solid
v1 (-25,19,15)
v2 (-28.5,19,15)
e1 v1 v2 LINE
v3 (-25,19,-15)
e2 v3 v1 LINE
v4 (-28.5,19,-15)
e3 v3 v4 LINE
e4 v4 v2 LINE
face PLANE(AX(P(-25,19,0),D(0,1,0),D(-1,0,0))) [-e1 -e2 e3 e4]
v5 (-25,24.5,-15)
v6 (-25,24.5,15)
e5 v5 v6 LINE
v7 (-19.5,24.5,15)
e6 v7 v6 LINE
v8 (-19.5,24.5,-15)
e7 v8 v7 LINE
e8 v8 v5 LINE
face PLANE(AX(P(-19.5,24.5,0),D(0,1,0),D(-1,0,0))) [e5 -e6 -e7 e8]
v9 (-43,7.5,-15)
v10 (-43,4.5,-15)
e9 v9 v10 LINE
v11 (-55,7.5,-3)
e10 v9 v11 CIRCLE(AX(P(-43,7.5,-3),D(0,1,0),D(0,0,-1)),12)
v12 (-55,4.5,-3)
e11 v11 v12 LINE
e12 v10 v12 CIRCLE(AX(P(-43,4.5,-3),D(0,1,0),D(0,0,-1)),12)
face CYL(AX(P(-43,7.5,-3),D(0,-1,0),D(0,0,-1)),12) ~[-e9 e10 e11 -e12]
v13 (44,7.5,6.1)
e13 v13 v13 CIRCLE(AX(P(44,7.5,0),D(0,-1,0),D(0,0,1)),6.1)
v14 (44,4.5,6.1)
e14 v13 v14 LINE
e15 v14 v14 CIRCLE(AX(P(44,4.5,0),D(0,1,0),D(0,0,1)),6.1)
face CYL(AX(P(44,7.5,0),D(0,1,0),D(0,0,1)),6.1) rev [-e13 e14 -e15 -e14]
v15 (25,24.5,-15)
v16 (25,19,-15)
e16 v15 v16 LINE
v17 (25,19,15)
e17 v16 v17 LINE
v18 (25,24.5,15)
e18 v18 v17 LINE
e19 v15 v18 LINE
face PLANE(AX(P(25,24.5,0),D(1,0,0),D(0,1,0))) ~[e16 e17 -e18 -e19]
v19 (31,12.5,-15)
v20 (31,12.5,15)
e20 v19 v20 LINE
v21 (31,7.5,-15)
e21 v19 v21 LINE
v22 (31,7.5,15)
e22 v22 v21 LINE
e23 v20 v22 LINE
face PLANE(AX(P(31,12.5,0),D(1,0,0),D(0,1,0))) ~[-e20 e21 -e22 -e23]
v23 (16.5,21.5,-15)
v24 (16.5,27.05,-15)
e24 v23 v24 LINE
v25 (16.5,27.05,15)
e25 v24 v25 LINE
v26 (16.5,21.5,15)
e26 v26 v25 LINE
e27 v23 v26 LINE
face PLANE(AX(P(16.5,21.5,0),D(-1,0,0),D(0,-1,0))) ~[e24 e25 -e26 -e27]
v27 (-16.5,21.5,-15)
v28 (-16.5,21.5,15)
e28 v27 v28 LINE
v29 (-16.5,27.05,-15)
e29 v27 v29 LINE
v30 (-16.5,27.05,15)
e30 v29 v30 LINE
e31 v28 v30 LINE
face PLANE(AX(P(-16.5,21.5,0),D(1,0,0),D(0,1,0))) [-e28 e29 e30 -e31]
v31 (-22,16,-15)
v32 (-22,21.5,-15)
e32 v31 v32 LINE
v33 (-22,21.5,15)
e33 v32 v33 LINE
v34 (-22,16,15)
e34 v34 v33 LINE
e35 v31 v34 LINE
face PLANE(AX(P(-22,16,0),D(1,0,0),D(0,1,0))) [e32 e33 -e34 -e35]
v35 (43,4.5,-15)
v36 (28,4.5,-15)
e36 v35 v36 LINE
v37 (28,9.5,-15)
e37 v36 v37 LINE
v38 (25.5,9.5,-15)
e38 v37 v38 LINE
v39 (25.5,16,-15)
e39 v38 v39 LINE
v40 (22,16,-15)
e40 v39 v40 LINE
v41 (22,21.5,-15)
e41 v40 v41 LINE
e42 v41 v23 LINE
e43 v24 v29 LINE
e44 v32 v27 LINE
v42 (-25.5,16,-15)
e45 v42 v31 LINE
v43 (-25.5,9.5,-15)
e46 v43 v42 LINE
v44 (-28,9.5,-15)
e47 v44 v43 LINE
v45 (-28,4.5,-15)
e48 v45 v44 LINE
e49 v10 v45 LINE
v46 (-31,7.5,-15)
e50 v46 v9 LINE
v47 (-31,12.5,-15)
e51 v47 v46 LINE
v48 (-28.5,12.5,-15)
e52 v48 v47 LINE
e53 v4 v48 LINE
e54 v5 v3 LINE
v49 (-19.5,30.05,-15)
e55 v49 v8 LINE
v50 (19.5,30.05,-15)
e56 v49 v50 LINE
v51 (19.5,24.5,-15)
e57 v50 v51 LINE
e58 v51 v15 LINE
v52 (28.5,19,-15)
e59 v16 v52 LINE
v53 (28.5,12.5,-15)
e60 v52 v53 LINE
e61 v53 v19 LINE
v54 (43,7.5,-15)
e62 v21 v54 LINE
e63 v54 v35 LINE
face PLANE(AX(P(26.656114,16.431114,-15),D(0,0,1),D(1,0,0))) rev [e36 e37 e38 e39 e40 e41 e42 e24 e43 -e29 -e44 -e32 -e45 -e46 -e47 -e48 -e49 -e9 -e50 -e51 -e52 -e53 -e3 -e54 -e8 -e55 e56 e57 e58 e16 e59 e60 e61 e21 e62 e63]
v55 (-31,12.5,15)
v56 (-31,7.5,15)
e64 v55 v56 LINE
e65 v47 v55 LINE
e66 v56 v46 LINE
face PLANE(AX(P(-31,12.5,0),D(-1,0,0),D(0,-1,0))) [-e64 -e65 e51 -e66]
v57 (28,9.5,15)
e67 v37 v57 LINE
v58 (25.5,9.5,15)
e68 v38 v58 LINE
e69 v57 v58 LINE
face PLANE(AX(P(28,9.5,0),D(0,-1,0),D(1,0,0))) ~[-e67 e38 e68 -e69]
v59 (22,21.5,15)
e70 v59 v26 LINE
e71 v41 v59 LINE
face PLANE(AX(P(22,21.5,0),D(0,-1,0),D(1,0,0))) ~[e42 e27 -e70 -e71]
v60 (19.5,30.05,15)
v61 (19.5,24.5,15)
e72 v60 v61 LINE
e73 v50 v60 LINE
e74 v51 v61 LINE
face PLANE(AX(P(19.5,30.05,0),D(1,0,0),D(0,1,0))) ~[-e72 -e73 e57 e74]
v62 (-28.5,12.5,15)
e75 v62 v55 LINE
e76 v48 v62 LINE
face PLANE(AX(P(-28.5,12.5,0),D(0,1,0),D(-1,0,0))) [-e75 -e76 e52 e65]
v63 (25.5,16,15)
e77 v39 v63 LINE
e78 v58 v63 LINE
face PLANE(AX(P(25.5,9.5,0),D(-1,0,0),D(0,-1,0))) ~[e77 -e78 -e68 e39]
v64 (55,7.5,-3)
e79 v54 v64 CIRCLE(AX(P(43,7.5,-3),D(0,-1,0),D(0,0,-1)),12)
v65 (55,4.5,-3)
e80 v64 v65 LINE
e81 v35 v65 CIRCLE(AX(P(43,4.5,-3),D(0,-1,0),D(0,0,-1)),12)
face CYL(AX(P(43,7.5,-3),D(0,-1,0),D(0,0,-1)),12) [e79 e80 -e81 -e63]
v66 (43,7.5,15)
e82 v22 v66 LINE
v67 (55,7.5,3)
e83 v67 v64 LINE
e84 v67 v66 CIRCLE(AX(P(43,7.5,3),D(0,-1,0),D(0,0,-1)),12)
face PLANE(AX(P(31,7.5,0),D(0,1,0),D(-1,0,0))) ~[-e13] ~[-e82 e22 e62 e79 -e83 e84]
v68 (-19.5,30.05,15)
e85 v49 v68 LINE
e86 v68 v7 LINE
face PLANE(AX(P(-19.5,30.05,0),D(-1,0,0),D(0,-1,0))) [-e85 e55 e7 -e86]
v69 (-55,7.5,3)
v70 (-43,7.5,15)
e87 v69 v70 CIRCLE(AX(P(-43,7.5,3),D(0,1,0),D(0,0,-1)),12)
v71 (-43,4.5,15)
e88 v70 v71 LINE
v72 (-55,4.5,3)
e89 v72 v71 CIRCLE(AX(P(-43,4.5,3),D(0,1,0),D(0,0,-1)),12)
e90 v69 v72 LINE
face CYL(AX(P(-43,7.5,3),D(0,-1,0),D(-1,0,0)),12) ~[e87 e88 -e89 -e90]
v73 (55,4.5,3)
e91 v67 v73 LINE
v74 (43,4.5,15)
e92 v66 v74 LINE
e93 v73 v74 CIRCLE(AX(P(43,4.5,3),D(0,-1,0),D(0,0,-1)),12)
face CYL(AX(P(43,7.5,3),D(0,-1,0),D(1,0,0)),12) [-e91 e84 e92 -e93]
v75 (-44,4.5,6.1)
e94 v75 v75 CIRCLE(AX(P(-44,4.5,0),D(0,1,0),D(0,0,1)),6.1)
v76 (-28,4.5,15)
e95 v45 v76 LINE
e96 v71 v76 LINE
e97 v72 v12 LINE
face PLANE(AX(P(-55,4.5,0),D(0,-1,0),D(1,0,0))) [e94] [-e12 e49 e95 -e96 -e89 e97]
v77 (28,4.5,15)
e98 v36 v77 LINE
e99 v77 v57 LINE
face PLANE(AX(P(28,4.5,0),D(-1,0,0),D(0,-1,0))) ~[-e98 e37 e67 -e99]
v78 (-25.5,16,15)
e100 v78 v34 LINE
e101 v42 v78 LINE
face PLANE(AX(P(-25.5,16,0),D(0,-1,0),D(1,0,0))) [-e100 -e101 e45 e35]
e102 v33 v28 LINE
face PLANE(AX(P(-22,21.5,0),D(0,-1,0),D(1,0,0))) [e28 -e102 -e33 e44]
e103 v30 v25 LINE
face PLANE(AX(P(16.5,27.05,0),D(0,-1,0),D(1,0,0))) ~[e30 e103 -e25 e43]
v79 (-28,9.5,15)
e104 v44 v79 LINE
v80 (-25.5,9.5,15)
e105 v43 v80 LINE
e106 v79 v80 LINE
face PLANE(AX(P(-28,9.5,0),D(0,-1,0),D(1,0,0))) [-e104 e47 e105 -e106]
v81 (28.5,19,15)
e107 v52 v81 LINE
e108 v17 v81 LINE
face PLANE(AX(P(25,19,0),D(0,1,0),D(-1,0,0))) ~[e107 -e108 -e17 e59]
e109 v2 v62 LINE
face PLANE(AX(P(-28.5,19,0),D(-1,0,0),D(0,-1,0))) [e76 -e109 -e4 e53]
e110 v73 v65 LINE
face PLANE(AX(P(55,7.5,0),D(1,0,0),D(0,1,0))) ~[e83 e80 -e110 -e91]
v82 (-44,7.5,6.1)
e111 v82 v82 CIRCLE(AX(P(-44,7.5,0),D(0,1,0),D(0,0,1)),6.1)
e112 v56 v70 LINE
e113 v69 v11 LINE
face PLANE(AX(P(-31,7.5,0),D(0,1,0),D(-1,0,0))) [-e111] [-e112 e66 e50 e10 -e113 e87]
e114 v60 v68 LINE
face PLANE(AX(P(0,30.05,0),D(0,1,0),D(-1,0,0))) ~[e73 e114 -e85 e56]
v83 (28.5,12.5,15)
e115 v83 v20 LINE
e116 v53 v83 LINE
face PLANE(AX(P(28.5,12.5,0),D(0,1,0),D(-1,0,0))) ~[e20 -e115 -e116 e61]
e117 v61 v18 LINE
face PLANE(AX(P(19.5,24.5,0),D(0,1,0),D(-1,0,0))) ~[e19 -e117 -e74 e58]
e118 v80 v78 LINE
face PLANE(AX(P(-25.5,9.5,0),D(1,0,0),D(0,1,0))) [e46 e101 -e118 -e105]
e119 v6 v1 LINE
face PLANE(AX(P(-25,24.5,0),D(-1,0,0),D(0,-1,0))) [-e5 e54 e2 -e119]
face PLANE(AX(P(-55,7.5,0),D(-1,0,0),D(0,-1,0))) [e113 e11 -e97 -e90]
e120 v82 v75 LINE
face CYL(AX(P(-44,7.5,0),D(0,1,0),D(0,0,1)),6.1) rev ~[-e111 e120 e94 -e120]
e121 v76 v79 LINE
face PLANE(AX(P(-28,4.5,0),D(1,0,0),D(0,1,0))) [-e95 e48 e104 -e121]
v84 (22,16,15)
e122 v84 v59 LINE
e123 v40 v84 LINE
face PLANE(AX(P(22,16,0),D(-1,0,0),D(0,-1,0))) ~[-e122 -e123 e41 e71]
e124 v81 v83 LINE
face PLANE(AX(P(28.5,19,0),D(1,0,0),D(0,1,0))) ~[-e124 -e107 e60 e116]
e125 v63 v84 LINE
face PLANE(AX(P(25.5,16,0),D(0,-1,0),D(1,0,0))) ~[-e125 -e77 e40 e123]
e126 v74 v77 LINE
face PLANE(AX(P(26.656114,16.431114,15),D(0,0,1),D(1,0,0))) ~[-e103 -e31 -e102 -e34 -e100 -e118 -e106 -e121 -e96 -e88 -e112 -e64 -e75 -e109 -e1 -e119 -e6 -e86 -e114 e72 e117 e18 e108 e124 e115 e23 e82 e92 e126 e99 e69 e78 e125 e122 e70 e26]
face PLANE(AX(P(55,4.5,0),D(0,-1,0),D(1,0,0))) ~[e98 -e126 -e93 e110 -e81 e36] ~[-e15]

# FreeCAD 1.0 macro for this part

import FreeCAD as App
import Part
import Sketcher
from FreeCAD import Vector


def edges_at(feature, points):
    """Names of the edges that pass closest to the given points."""
    edges = feature.Shape.Edges
    near = lambda p: min(range(len(edges)), key=lambda i: edges[i].distToShape(Part.Vertex(*p))[0])
    return sorted({f"Edge{near(p) + 1}" for p in points})

doc = App.newDocument("Part")
body = doc.addObject("PartDesign::Body", "Body")

sketch1 = body.newObject("Sketcher::SketchObject", "Sketch")
sketch1.AttachmentSupport = (doc.getObject("XY_Plane"), [""])
sketch1.MapMode = "FlatFace"
sketch1.addGeometry([
    Part.LineSegment(Vector(-55, 4.5, 0), Vector(-28, 4.5, 0)),
    Part.LineSegment(Vector(-28, 4.5, 0), Vector(-28, 9.5, 0)),
    Part.LineSegment(Vector(-28, 9.5, 0), Vector(-25.5, 9.5, 0)),
    Part.LineSegment(Vector(-25.5, 9.5, 0), Vector(-25.5, 16, 0)),
    Part.LineSegment(Vector(-25.5, 16, 0), Vector(-22, 16, 0)),
    Part.LineSegment(Vector(-22, 16, 0), Vector(-22, 21.5, 0)),
    Part.LineSegment(Vector(-22, 21.5, 0), Vector(-16.5, 21.5, 0)),
    Part.LineSegment(Vector(-16.5, 21.5, 0), Vector(-16.5, 27.05, 0)),
    Part.LineSegment(Vector(-16.5, 27.05, 0), Vector(0, 27.05, 0)),
    Part.LineSegment(Vector(0, 27.05, 0), Vector(0, 30.05, 0)),
    Part.LineSegment(Vector(0, 30.05, 0), Vector(-19.5, 30.05, 0)),
    Part.LineSegment(Vector(-19.5, 30.05, 0), Vector(-19.5, 24.5, 0)),
    Part.LineSegment(Vector(-19.5, 24.5, 0), Vector(-25, 24.5, 0)),
    Part.LineSegment(Vector(-25, 24.5, 0), Vector(-25, 19, 0)),
    Part.LineSegment(Vector(-25, 19, 0), Vector(-28.5, 19, 0)),
    Part.LineSegment(Vector(-28.5, 19, 0), Vector(-28.5, 12.5, 0)),
    Part.LineSegment(Vector(-28.5, 12.5, 0), Vector(-31, 12.5, 0)),
    Part.LineSegment(Vector(-31, 12.5, 0), Vector(-31, 7.5, 0)),
    Part.LineSegment(Vector(-31, 7.5, 0), Vector(-55, 7.5, 0)),
    Part.LineSegment(Vector(-55, 7.5, 0), Vector(-55, 4.5, 0)),
], False)
sketch1.addConstraint([
    Sketcher.Constraint("Coincident", 0, 2, 1, 1),
    Sketcher.Constraint("Coincident", 1, 2, 2, 1),
    Sketcher.Constraint("Coincident", 2, 2, 3, 1),
    Sketcher.Constraint("Coincident", 3, 2, 4, 1),
    Sketcher.Constraint("Coincident", 4, 2, 5, 1),
    Sketcher.Constraint("Coincident", 5, 2, 6, 1),
    Sketcher.Constraint("Coincident", 6, 2, 7, 1),
    Sketcher.Constraint("Coincident", 7, 2, 8, 1),
    Sketcher.Constraint("Coincident", 8, 2, 9, 1),
    Sketcher.Constraint("Coincident", 9, 2, 10, 1),
    Sketcher.Constraint("Coincident", 10, 2, 11, 1),
    Sketcher.Constraint("Coincident", 11, 2, 12, 1),
    Sketcher.Constraint("Coincident", 12, 2, 13, 1),
    Sketcher.Constraint("Coincident", 13, 2, 14, 1),
    Sketcher.Constraint("Coincident", 14, 2, 15, 1),
    Sketcher.Constraint("Coincident", 15, 2, 16, 1),
    Sketcher.Constraint("Coincident", 16, 2, 17, 1),
    Sketcher.Constraint("Coincident", 17, 2, 18, 1),
    Sketcher.Constraint("Coincident", 18, 2, 19, 1),
    Sketcher.Constraint("Coincident", 19, 2, 0, 1),
    Sketcher.Constraint("Horizontal", 0),
    Sketcher.Constraint("Vertical", 1),
    Sketcher.Constraint("Horizontal", 2),
    Sketcher.Constraint("Vertical", 3),
    Sketcher.Constraint("Horizontal", 4),
    Sketcher.Constraint("Vertical", 5),
    Sketcher.Constraint("Horizontal", 6),
    Sketcher.Constraint("Vertical", 7),
    Sketcher.Constraint("Horizontal", 8),
    Sketcher.Constraint("Vertical", 9),
    Sketcher.Constraint("Horizontal", 10),
    Sketcher.Constraint("Vertical", 11),
    Sketcher.Constraint("Horizontal", 12),
    Sketcher.Constraint("Vertical", 13),
    Sketcher.Constraint("Horizontal", 14),
    Sketcher.Constraint("Vertical", 15),
    Sketcher.Constraint("Horizontal", 16),
    Sketcher.Constraint("Vertical", 17),
    Sketcher.Constraint("Horizontal", 18),
    Sketcher.Constraint("Vertical", 19),
    Sketcher.Constraint("PointOnObject", 8, 2, -2),
    Sketcher.Constraint("Equal", 6, 12),
    Sketcher.Constraint("Equal", 4, 14),
    Sketcher.Constraint("Equal", 2, 16),
    Sketcher.Constraint("Equal", 12, 5),
    Sketcher.Constraint("Equal", 7, 11),
    Sketcher.Constraint("Equal", 5, 13),
    Sketcher.Constraint("Equal", 3, 15),
    Sketcher.Constraint("Equal", 1, 17),
    Sketcher.Constraint("DistanceX", 0, 1, 0, 2, 27.0),
    Sketcher.Constraint("DistanceX", 18, 2, 18, 1, 24.0),
    Sketcher.Constraint("DistanceY", 1, 1, 1, 2, 5.0),
    Sketcher.Constraint("DistanceY", 9, 1, 9, 2, 3.0),
    Sketcher.Constraint("DistanceX", 2, 1, 2, 2, 2.5),
    Sketcher.Constraint("DistanceX", 4, 1, 4, 2, 3.5),
    Sketcher.Constraint("DistanceX", 6, 1, 6, 2, 5.5),
    Sketcher.Constraint("DistanceX", 8, 1, 8, 2, 16.5),
    Sketcher.Constraint("DistanceY", 3, 1, 3, 2, 6.5),
    Sketcher.Constraint("DistanceY", -1, 1, 3, 2, 16.0),
    Sketcher.Constraint("DistanceY", 7, 1, 7, 2, 5.55),
])
pad1 = body.newObject("PartDesign::Pad", "Pad")
pad1.Profile = sketch1
pad1.Length = 30
pad1.Midplane = True

sketch2 = body.newObject("Sketcher::SketchObject", "Sketch001")
sketch2.AttachmentSupport = (doc.getObject("XZ_Plane"), [""])
sketch2.MapMode = "FlatFace"
sketch2.AttachmentOffset = App.Placement(Vector(0, 0, -7.5), App.Rotation())
sketch2.addGeometry(Part.Circle(Vector(-44, 0, 0), Vector(0, 0, 1), 6.1), False)
sketch2.addConstraint([
    Sketcher.Constraint("PointOnObject", 0, 3, -1),
    Sketcher.Constraint("Diameter", 0, 12.2),
    Sketcher.Constraint("DistanceX", 0, 3, -1, 1, 44.0),
])
pocket1 = body.newObject("PartDesign::Pocket", "Pocket")
pocket1.Profile = sketch2
pocket1.Type = "ThroughAll"
pocket1.Reversed = True
doc.recompute()

fillet = body.newObject("PartDesign::Fillet", "Fillet")
fillet.Base = (pocket1, edges_at(pocket1, [(-55, 6, -15), (-55, 6, 15)]))
fillet.Radius = 12
doc.recompute()

mirrored = body.newObject("PartDesign::Mirrored", "Mirrored")
mirrored.Originals = [pad1, pocket1]
mirrored.MirrorPlane = (doc.getObject("YZ_Plane"), [""])
body.Tip = mirrored
doc.recompute()

fillet2 = body.newObject("PartDesign::Fillet", "Fillet001")
fillet2.Base = (mirrored, edges_at(mirrored, [(55, 6, -15), (55, 6, 15)]))
fillet2.Radius = 12

doc.recompute()
